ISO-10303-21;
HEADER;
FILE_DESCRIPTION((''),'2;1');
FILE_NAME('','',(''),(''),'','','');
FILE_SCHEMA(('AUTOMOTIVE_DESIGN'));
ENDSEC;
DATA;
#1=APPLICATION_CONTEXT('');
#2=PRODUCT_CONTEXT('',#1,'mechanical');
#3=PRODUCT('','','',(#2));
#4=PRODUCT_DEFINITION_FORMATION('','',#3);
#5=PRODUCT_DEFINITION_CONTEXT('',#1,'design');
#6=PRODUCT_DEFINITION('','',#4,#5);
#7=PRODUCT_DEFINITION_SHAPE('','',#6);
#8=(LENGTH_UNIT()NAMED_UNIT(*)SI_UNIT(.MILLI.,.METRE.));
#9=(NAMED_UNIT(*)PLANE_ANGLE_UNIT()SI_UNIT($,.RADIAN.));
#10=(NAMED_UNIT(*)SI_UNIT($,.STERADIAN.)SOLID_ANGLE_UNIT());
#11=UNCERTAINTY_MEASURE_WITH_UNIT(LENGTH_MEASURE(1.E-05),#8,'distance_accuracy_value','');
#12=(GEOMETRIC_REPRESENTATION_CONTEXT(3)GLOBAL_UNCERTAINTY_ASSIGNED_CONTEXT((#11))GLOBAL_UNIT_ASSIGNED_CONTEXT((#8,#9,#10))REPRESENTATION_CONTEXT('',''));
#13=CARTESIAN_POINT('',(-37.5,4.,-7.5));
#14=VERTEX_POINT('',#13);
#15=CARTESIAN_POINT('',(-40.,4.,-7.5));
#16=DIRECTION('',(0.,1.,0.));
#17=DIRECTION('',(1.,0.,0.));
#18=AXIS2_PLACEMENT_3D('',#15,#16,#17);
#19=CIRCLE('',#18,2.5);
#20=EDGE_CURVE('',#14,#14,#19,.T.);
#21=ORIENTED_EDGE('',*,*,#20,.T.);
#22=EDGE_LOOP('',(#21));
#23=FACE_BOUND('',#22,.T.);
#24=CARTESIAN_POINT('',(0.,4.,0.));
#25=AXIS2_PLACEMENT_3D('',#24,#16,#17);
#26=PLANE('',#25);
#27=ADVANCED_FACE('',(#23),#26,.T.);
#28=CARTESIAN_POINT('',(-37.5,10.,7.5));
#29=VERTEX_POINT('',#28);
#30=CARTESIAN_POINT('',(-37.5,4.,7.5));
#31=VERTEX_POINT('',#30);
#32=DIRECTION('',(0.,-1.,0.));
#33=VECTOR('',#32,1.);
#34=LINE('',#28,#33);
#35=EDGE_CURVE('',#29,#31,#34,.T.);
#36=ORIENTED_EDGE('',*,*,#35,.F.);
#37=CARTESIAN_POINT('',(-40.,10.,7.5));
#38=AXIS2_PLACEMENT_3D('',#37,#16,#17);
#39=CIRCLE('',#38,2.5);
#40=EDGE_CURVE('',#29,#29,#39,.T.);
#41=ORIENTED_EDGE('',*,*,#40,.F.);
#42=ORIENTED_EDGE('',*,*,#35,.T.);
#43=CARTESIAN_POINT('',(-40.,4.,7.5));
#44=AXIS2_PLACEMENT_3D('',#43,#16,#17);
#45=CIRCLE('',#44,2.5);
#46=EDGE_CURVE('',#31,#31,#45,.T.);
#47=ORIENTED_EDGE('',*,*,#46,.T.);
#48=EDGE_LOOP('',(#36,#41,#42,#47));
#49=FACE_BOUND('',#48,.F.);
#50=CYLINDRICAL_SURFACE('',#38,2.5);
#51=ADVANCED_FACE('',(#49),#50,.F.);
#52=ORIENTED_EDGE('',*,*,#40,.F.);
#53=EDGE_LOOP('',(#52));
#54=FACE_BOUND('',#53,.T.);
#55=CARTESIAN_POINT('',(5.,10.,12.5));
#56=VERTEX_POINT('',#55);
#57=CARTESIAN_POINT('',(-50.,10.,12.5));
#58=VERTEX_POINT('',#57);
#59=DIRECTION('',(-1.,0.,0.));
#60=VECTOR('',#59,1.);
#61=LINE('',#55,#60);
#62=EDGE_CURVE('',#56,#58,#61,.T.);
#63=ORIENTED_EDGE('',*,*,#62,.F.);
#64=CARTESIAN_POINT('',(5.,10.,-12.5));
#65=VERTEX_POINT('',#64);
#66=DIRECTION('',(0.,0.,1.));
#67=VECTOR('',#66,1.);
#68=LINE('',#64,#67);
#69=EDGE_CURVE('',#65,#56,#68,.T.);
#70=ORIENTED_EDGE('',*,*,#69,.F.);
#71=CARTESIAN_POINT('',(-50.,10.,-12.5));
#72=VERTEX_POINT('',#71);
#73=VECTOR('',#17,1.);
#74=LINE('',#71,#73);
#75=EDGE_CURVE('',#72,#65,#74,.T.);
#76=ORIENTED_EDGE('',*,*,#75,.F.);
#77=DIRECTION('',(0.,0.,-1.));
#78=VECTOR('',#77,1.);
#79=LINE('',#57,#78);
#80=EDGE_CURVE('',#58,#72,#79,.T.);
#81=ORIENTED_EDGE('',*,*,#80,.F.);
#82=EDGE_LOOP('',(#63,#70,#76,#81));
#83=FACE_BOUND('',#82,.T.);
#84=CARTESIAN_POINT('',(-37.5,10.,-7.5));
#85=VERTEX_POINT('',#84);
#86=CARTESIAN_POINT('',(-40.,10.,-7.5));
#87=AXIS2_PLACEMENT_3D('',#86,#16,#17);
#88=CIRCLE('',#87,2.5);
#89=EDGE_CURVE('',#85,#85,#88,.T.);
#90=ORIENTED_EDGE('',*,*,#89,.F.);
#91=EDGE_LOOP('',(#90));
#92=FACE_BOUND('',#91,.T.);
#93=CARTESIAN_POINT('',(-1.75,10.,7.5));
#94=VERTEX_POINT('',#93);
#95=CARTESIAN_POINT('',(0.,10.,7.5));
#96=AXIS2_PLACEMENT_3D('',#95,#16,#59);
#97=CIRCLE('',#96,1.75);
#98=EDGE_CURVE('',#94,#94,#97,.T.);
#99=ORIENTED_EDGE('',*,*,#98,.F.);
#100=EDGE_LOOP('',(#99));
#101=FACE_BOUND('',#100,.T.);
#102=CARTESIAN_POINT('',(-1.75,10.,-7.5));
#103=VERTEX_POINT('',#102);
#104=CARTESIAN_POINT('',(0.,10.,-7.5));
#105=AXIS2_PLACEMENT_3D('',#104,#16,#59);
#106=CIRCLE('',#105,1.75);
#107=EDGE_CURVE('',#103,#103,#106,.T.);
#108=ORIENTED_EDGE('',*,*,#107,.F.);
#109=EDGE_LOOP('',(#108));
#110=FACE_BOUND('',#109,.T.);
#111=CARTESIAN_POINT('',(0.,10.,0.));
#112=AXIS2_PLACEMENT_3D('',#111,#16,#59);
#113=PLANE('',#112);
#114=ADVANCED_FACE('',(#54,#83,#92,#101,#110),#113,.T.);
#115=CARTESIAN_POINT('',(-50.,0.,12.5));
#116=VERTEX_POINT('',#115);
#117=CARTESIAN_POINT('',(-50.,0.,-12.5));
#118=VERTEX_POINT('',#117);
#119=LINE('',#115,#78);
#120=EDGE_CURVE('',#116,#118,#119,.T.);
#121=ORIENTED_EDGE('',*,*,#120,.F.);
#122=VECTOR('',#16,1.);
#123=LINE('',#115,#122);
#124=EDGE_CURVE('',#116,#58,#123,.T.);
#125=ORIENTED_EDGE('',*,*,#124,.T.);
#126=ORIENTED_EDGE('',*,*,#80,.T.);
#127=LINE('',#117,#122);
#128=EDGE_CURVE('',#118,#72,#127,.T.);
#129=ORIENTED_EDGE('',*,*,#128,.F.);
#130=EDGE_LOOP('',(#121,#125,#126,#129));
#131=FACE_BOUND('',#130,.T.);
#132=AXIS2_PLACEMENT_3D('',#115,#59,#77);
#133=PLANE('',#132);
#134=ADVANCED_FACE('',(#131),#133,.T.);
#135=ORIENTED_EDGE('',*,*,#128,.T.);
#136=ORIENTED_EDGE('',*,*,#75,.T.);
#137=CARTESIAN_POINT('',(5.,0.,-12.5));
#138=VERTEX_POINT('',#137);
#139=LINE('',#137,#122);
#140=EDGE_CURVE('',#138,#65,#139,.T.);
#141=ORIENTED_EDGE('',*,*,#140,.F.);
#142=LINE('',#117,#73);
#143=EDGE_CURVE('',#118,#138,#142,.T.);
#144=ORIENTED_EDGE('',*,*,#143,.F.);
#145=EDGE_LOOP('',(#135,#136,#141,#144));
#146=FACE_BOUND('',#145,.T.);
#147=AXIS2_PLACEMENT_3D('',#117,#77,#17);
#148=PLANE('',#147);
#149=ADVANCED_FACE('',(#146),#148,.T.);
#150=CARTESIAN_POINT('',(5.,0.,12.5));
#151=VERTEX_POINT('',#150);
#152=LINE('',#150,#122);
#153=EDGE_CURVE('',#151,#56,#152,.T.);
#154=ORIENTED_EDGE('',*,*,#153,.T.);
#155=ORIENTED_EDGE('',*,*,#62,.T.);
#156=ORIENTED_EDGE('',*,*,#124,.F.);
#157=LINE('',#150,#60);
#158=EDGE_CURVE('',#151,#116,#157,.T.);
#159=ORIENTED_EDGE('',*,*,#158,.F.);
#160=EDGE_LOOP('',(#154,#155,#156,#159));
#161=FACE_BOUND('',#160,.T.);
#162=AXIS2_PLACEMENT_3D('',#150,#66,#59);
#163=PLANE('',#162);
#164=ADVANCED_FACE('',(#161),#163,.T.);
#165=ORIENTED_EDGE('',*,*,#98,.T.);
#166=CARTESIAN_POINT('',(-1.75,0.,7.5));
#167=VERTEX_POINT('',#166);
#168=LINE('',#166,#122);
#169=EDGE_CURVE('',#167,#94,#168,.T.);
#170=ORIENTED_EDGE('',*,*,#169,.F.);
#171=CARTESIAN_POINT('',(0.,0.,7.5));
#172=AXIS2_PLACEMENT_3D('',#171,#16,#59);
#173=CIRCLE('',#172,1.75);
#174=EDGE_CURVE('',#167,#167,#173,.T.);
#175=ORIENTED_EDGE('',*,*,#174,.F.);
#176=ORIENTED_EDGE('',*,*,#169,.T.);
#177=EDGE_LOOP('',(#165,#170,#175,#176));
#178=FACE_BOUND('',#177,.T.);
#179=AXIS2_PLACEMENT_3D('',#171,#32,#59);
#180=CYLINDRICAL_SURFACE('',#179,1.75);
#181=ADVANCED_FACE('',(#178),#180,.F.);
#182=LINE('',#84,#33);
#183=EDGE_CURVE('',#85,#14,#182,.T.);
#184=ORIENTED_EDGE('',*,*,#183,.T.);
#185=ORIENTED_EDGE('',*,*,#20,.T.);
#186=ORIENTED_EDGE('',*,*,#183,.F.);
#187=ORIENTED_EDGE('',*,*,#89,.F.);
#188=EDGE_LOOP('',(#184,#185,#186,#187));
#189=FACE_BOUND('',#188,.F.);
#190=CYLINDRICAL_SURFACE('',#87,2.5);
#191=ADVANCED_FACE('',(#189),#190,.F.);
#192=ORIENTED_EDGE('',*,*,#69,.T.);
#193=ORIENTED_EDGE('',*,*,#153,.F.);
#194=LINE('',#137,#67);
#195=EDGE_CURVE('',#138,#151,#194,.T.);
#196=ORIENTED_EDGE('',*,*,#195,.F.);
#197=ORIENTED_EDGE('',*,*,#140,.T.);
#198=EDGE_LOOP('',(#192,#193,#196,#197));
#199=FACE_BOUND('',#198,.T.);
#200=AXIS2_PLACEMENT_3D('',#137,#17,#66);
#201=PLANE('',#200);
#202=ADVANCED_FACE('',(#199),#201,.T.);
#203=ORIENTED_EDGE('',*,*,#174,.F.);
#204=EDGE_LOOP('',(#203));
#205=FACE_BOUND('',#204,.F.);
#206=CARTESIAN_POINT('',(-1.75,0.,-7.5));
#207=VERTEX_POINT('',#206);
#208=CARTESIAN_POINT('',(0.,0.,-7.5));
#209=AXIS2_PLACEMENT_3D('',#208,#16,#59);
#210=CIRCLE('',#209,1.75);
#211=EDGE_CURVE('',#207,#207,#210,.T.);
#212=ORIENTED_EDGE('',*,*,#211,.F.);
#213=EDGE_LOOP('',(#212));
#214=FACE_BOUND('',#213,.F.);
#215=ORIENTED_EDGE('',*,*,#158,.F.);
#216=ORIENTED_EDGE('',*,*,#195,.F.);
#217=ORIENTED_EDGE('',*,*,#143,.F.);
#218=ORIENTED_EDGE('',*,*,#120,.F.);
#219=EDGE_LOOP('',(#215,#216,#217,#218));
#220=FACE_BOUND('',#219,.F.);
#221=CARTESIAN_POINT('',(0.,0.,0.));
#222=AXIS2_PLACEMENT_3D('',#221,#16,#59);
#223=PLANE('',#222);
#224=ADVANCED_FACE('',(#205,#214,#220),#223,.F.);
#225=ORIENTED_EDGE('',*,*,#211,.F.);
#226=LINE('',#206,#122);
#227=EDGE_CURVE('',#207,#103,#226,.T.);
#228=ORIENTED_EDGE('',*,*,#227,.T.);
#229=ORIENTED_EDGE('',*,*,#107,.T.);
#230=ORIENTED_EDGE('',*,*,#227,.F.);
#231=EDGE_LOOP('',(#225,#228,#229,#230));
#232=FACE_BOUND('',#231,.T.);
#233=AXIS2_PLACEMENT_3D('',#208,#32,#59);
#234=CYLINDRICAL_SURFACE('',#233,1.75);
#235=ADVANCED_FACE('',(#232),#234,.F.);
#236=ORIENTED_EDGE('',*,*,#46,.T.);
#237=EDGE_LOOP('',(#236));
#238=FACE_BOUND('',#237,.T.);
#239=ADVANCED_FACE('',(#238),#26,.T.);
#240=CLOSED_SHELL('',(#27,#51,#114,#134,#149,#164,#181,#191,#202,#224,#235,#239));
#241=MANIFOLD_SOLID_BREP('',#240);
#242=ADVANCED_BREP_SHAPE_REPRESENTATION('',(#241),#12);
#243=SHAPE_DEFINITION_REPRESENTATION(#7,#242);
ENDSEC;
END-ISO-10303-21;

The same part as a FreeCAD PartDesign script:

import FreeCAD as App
import Part
import Sketcher
from FreeCAD import Vector
Q = App.Units.Quantity

doc = App.newDocument("Part")
body = doc.addObject("PartDesign::Body", "Body")

sketch1 = body.newObject("Sketcher::SketchObject", "Sketch")
sketch1.AttachmentSupport = (doc.getObject("XZ_Plane"), [""])
sketch1.MapMode = "FlatFace"
sketch1.addGeometry(Part.LineSegment(Vector(5, -12.5, 0), Vector(-50, -12.5, 0)), False)
sketch1.addGeometry(Part.LineSegment(Vector(-50, -12.5, 0), Vector(-50, 12.5, 0)), False)
sketch1.addGeometry(Part.LineSegment(Vector(-50, 12.5, 0), Vector(5, 12.5, 0)), False)
sketch1.addGeometry(Part.LineSegment(Vector(5, 12.5, 0), Vector(5, -12.5, 0)), False)
sketch1.addGeometry(Part.Circle(Vector(0, -7.5, 0), Vector(0, 0, 1), 1.8), False)
sketch1.addGeometry(Part.Circle(Vector(0, 7.5, 0), Vector(0, 0, 1), 1.8), False)
sketch1.addConstraint(Sketcher.Constraint("Coincident", 0, 2, 1, 1))
sketch1.addConstraint(Sketcher.Constraint("Coincident", 1, 2, 2, 1))
sketch1.addConstraint(Sketcher.Constraint("Coincident", 2, 2, 3, 1))
sketch1.addConstraint(Sketcher.Constraint("Coincident", 3, 2, 0, 1))
sketch1.addConstraint(Sketcher.Constraint("Horizontal", 0))
sketch1.addConstraint(Sketcher.Constraint("Vertical", 1))
sketch1.addConstraint(Sketcher.Constraint("Horizontal", 2))
sketch1.addConstraint(Sketcher.Constraint("Vertical", 3))
sketch1.addConstraint(Sketcher.Constraint("Equal", 4, 5))
sketch1.addConstraint(Sketcher.Constraint("Symmetric", 4, 3, 5, 3, -1, 1))
sketch1.addConstraint(Sketcher.Constraint("PointOnObject", 4, 3, -2))
sketch1.addConstraint(Sketcher.Constraint("Diameter", 4, Q("3.5 mm")))
sketch1.addConstraint(Sketcher.Constraint("DistanceY", 1, 1, 1, 2, Q("25 mm")))
sketch1.addConstraint(Sketcher.Constraint("DistanceX", -1, 1, 2, 2, Q("5 mm")))
sketch1.addConstraint(Sketcher.Constraint("DistanceY", 4, 3, 5, 3, Q("15 mm")))
sketch1.addConstraint(Sketcher.Constraint("DistanceY", 0, 2, 4, 3, Q("5 mm")))
sketch1.addConstraint(Sketcher.Constraint("DistanceX", 0, 2, 0, 1, Q("55 mm")))
pad1 = body.newObject("PartDesign::Pad", "Pad")
pad1.Profile = sketch1
pad1.Length = 10
pad1.Reversed = True

sketch2 = body.newObject("Sketcher::SketchObject", "Sketch001")
sketch2.AttachmentSupport = (doc.getObject("XZ_Plane"), [""])
sketch2.MapMode = "FlatFace"
sketch2.AttachmentOffset = App.Placement(Vector(0, 0, -10), App.Rotation())
sketch2.addGeometry(Part.Circle(Vector(-40, -7.5, 0), Vector(0, 0, 1), 2.5), False)
sketch2.addGeometry(Part.Circle(Vector(-40, 7.5, 0), Vector(0, 0, 1), 2.5), False)
sketch2.addConstraint(Sketcher.Constraint("Equal", 0, 1))
sketch2.addConstraint(Sketcher.Constraint("Symmetric", 0, 3, 1, 3, -1))
sketch2.addConstraint(Sketcher.Constraint("Diameter", 0, Q("5 mm")))
sketch2.addConstraint(Sketcher.Constraint("DistanceY", 0, 3, 1, 3, Q("15 mm")))
sketch2.addConstraint(Sketcher.Constraint("DistanceX", 0, 3, -1, 1, Q("40 mm")))
pocket1 = body.newObject("PartDesign::Pocket", "Pocket")
pocket1.Profile = sketch2
pocket1.Length = 6
pocket1.Reversed = True

doc.recompute()
